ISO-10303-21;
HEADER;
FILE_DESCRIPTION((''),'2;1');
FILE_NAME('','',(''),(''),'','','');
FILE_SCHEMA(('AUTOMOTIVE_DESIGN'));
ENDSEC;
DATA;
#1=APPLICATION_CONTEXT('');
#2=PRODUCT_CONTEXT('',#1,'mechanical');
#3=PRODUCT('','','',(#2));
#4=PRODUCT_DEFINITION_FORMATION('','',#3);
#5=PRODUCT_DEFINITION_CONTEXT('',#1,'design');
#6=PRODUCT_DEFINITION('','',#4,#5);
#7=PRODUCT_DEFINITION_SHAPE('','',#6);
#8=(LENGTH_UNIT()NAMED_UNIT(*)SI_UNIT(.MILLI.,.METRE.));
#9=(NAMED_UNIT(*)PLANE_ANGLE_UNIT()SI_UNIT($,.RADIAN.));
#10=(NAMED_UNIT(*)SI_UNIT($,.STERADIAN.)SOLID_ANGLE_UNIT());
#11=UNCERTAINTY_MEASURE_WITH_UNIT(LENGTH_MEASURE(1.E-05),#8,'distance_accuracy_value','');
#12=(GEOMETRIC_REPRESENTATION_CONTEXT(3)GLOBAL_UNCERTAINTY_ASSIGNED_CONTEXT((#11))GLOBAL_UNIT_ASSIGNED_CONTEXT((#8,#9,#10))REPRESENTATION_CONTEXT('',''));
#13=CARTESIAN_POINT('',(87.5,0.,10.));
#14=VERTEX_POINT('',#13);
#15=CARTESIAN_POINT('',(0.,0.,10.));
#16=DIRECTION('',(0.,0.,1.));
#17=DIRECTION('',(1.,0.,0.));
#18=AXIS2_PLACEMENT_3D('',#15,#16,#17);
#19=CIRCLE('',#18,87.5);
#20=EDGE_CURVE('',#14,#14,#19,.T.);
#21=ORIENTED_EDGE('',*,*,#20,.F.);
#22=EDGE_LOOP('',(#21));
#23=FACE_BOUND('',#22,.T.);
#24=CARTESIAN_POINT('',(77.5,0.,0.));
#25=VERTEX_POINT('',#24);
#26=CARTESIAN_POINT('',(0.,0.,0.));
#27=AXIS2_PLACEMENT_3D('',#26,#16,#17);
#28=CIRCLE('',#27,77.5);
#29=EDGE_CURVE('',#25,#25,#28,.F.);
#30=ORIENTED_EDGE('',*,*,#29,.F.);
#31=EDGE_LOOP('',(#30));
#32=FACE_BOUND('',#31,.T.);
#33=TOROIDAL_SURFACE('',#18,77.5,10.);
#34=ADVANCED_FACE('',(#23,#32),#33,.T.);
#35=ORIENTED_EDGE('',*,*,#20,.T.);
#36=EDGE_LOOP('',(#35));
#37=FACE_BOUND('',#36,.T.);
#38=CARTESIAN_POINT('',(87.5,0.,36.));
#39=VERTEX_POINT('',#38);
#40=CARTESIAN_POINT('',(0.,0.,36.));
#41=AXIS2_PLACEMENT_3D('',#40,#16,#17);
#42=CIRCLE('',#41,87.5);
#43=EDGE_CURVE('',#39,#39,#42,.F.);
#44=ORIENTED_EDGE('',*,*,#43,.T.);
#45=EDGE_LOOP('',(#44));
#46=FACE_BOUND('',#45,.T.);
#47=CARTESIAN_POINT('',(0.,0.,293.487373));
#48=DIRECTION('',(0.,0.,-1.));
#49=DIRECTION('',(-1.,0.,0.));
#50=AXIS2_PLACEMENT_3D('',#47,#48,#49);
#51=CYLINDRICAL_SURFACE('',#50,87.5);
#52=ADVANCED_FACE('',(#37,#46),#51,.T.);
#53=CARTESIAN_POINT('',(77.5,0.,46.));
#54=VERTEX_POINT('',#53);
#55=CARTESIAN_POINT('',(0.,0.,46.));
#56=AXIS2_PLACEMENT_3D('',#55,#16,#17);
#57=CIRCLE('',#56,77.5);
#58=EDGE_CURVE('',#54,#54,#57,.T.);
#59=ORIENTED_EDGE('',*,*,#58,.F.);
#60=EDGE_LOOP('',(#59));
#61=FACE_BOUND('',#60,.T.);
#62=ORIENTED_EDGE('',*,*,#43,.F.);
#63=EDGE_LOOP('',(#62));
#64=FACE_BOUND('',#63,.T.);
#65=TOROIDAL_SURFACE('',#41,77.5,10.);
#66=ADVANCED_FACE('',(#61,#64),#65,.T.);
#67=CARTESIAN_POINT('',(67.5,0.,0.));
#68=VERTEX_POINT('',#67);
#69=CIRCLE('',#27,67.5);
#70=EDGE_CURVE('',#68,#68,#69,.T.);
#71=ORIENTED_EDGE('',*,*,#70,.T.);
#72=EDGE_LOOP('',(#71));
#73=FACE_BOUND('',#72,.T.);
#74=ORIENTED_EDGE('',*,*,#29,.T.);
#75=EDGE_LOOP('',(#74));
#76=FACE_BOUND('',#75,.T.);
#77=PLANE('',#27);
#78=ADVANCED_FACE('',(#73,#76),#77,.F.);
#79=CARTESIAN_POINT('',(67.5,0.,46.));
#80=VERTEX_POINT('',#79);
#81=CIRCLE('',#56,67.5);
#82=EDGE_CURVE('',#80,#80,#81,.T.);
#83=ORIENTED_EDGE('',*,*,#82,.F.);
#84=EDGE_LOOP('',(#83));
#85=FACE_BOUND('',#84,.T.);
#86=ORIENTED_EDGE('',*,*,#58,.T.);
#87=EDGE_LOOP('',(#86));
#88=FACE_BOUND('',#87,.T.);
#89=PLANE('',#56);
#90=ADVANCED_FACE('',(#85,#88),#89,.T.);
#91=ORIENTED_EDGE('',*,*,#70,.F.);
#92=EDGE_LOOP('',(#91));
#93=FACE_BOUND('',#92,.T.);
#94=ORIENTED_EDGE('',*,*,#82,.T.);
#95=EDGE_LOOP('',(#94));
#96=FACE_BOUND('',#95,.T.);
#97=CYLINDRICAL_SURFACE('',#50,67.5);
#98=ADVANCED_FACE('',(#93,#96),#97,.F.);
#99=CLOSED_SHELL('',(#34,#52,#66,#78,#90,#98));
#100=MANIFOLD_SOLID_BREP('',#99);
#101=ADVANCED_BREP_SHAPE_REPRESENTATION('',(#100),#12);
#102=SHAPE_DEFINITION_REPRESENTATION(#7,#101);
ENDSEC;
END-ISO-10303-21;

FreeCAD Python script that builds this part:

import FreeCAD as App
import Part
import Sketcher
from FreeCAD import Vector


def edges_at(feature, points):
    """Names of the edges that pass closest to the given points."""
    edges = feature.Shape.Edges
    near = lambda p: min(range(len(edges)), key=lambda i: edges[i].distToShape(Part.Vertex(*p))[0])
    return sorted({f"Edge{near(p) + 1}" for p in points})

doc = App.newDocument("Part")
body = doc.addObject("PartDesign::Body", "Body")

sketch1 = body.newObject("Sketcher::SketchObject", "Sketch")
sketch1.AttachmentSupport = (doc.getObject("XY_Plane"), [""])
sketch1.MapMode = "FlatFace"
sketch1.addGeometry([
    Part.Circle(Vector(0, 0, 0), Vector(0, 0, 1), 87.5),
    Part.Circle(Vector(0, 0, 0), Vector(0, 0, 1), 67.5),
], False)
sketch1.addConstraint([
    Sketcher.Constraint("Coincident", 0, 3, -1, 1),
    Sketcher.Constraint("Coincident", 1, 3, -1, 1),
    Sketcher.Constraint("Diameter", 0, 175.0),
    Sketcher.Constraint("Diameter", 1, 135.0),
])
pad1 = body.newObject("PartDesign::Pad", "Pad")
pad1.Profile = sketch1
pad1.Length = 46
doc.recompute()

fillet = body.newObject("PartDesign::Fillet", "Fillet")
fillet.Base = (pad1, edges_at(pad1, [(-87.5, 0, 46), (-87.5, 0, 0)]))
fillet.Radius = 10

doc.recompute()
